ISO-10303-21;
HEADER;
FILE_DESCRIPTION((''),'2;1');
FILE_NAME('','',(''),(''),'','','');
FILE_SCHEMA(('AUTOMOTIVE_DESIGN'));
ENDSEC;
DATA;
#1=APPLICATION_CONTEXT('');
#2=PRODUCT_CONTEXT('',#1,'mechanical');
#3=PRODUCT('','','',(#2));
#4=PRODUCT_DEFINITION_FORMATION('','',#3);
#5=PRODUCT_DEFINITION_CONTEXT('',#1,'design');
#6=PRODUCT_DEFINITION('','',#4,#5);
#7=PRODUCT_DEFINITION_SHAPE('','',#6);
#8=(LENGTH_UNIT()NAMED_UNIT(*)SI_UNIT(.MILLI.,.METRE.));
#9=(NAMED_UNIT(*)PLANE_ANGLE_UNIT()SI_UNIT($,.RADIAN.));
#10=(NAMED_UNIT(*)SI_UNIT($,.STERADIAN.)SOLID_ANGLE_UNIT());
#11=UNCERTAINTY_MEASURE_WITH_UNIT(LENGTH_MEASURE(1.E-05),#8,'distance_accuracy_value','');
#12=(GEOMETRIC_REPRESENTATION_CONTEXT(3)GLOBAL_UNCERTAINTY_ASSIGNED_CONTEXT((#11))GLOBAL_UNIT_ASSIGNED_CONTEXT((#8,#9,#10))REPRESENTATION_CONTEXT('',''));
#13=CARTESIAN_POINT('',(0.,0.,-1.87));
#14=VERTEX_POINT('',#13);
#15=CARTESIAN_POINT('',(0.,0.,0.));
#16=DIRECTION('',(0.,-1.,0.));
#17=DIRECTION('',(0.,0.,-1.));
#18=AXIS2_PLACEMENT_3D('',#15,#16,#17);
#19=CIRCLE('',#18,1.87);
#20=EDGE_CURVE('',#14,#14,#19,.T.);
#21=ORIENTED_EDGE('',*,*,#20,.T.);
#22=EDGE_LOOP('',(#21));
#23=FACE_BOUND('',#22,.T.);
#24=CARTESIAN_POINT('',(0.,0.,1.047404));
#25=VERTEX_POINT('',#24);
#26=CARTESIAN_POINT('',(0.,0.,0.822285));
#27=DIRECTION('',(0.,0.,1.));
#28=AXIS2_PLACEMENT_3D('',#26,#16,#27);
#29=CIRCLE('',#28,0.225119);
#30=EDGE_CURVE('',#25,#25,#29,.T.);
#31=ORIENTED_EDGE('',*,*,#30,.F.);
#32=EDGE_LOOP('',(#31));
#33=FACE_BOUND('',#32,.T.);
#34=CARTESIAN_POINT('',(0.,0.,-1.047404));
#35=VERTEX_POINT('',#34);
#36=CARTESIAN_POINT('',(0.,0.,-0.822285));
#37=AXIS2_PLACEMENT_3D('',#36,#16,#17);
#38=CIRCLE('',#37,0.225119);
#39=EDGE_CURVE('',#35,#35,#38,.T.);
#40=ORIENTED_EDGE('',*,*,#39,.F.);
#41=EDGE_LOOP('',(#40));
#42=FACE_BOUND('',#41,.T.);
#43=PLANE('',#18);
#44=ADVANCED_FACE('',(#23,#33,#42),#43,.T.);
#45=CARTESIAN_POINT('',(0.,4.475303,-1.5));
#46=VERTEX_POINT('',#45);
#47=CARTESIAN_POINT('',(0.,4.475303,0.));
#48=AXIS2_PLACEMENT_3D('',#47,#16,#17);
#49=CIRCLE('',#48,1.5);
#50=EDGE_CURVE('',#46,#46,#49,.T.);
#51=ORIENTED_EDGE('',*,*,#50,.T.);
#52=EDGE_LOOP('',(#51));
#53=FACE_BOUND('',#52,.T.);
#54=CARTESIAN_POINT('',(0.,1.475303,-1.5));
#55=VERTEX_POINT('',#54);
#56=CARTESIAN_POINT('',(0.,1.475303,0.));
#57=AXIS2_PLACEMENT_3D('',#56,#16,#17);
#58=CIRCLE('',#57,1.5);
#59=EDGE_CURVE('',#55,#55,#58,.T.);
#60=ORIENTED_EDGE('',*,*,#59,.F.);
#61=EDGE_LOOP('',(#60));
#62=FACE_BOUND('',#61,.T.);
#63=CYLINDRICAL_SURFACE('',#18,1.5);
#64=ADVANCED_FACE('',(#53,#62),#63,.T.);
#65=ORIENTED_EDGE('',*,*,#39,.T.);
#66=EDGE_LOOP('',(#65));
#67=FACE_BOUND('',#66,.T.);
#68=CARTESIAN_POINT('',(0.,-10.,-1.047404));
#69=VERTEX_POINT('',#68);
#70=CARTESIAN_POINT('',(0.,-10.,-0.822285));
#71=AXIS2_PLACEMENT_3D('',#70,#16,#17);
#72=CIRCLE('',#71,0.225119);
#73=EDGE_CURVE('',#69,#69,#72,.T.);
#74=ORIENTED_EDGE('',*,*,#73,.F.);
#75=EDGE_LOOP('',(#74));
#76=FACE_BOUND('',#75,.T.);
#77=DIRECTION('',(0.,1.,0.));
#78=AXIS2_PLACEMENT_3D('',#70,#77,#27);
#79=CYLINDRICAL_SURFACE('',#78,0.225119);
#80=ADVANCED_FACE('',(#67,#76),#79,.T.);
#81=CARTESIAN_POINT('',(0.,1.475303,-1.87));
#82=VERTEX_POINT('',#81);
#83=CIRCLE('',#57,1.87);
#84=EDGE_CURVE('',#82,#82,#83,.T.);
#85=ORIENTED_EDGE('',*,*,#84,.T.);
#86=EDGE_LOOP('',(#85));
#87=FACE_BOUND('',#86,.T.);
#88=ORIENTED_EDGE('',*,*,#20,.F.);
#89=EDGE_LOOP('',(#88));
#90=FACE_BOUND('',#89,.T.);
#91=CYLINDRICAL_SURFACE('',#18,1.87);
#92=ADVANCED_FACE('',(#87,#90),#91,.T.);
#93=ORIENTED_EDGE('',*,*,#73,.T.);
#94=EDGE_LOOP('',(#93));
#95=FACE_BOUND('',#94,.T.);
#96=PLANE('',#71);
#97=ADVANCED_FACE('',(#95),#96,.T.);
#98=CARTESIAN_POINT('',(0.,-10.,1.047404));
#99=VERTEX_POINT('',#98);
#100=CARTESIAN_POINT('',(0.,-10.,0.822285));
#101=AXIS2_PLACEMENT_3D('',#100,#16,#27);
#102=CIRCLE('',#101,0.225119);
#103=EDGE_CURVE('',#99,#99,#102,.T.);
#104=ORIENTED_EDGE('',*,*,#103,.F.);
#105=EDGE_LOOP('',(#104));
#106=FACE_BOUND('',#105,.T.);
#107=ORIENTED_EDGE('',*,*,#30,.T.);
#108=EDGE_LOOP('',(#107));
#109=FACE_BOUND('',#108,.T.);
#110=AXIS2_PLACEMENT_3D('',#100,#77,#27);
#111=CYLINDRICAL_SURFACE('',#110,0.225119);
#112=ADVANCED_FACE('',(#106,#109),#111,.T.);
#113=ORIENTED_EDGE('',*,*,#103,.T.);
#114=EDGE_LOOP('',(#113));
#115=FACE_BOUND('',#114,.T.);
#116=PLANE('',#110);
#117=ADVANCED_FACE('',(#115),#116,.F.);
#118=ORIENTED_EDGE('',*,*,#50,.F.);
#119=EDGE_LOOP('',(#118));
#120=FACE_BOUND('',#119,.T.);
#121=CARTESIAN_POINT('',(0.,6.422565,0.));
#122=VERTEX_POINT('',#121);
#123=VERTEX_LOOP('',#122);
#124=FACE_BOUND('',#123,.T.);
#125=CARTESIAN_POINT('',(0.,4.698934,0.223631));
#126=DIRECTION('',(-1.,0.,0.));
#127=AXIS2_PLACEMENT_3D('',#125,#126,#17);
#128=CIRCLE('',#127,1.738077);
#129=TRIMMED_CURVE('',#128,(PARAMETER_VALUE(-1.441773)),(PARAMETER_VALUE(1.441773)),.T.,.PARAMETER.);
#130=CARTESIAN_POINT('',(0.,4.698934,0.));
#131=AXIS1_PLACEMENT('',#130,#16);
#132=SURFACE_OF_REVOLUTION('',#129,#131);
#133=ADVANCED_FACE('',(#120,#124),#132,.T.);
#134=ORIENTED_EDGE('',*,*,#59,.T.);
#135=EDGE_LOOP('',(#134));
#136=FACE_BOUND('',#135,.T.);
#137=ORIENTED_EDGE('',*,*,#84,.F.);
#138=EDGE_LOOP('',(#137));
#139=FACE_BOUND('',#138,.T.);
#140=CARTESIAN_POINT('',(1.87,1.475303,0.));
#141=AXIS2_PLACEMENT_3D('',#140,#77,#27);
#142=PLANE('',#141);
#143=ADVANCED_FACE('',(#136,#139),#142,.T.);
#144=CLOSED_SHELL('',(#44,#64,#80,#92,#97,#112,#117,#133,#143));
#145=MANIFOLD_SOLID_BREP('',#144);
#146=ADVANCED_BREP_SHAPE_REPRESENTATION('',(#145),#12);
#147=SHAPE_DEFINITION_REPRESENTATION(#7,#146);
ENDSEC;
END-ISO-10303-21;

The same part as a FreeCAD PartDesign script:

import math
import FreeCAD as App
import Part
import Sketcher

doc = App.newDocument("Part")
body = doc.addObject("PartDesign::Body", "Body")

sketch1 = doc.addObject("Sketcher::SketchObject", "Sketch")
body.addObject(sketch1)
sketch1.AttachmentSupport = (doc.XY_Plane, [""])
sketch1.MapMode = "FlatFace"
sketch1.addGeometry([
    Part.LineSegment(App.Vector(0, 6.422565, 0), App.Vector(0, 0, 0)),
    Part.LineSegment(App.Vector(0, 0, 0), App.Vector(1.87, 0, 0)),
    Part.LineSegment(App.Vector(1.87, 0, 0), App.Vector(1.87, 1.475303, 0)),
    Part.LineSegment(App.Vector(1.87, 1.475303, 0), App.Vector(1.5, 1.475303, 0)),
    Part.LineSegment(App.Vector(1.5, 1.475303, 0), App.Vector(1.5, 4.475303, 0)),
    Part.ArcOfCircle(Part.Circle(App.Vector(-0.223631, 4.698934, 0), App.Vector(0, 0, 1), 1.738077), math.radians(-7.392481), math.radians(82.607518)),
], False)
sketch1.addConstraint([
    Sketcher.Constraint("Coincident", 0, 2, 1, 1),
    Sketcher.Constraint("Coincident", 1, 2, 2, 1),
    Sketcher.Constraint("Coincident", 2, 2, 3, 1),
    Sketcher.Constraint("Coincident", 3, 2, 4, 1),
    Sketcher.Constraint("Coincident", 4, 2, 5, 1),
    Sketcher.Constraint("Coincident", 5, 2, 0, 1),
    Sketcher.Constraint("Vertical", 0),
    Sketcher.Constraint("Horizontal", 1),
    Sketcher.Constraint("Vertical", 2),
    Sketcher.Constraint("Horizontal", 3),
    Sketcher.Constraint("Vertical", 4),
    Sketcher.Constraint("Coincident", 0, 2, -1, 1),
    Sketcher.Constraint("DistanceY", 4, 1, 4, 2, 3.0),
    Sketcher.Constraint("DistanceX", 1, 1, 1, 2, 1.87),
    Sketcher.Constraint("DistanceX", 3, 2, 3, 1, 0.37),
    Sketcher.Constraint("Radius", 5, 1.738077),
    Sketcher.Constraint("DistanceY", 0, 2, 0, 1, 6.422565),
    Sketcher.Constraint("DistanceY", 2, 1, 2, 2, 1.475303),
])
revolution = doc.addObject("PartDesign::Revolution", "Revolution")
body.addObject(revolution)
revolution.Profile = sketch1
revolution.ReferenceAxis = (sketch1, ["V_Axis"])
revolution.Angle = 360

sketch2 = doc.addObject("Sketcher::SketchObject", "Sketch001")
body.addObject(sketch2)
sketch2.AttachmentSupport = (doc.XZ_Plane, [""])
sketch2.MapMode = "FlatFace"
sketch2.addGeometry([
    Part.Circle(App.Vector(0, -0.822285, 0), App.Vector(0, 0, 1), 0.225119),
    Part.Circle(App.Vector(0, 0.822285, 0), App.Vector(0, 0, 1), 0.225119),
], False)
sketch2.addConstraint([
    Sketcher.Constraint("Equal", 0, 1),
    Sketcher.Constraint("Symmetric", 0, 3, 1, 3, -1, 1),
    Sketcher.Constraint("PointOnObject", 0, 3, -2),
    Sketcher.Constraint("Diameter", 0, 0.450238),
    Sketcher.Constraint("DistanceY", 0, 3, 1, 3, 1.64457),
])
pad1 = doc.addObject("PartDesign::Pad", "Pad")
body.addObject(pad1)
pad1.Profile = sketch2
pad1.Length = 10

doc.recompute()
